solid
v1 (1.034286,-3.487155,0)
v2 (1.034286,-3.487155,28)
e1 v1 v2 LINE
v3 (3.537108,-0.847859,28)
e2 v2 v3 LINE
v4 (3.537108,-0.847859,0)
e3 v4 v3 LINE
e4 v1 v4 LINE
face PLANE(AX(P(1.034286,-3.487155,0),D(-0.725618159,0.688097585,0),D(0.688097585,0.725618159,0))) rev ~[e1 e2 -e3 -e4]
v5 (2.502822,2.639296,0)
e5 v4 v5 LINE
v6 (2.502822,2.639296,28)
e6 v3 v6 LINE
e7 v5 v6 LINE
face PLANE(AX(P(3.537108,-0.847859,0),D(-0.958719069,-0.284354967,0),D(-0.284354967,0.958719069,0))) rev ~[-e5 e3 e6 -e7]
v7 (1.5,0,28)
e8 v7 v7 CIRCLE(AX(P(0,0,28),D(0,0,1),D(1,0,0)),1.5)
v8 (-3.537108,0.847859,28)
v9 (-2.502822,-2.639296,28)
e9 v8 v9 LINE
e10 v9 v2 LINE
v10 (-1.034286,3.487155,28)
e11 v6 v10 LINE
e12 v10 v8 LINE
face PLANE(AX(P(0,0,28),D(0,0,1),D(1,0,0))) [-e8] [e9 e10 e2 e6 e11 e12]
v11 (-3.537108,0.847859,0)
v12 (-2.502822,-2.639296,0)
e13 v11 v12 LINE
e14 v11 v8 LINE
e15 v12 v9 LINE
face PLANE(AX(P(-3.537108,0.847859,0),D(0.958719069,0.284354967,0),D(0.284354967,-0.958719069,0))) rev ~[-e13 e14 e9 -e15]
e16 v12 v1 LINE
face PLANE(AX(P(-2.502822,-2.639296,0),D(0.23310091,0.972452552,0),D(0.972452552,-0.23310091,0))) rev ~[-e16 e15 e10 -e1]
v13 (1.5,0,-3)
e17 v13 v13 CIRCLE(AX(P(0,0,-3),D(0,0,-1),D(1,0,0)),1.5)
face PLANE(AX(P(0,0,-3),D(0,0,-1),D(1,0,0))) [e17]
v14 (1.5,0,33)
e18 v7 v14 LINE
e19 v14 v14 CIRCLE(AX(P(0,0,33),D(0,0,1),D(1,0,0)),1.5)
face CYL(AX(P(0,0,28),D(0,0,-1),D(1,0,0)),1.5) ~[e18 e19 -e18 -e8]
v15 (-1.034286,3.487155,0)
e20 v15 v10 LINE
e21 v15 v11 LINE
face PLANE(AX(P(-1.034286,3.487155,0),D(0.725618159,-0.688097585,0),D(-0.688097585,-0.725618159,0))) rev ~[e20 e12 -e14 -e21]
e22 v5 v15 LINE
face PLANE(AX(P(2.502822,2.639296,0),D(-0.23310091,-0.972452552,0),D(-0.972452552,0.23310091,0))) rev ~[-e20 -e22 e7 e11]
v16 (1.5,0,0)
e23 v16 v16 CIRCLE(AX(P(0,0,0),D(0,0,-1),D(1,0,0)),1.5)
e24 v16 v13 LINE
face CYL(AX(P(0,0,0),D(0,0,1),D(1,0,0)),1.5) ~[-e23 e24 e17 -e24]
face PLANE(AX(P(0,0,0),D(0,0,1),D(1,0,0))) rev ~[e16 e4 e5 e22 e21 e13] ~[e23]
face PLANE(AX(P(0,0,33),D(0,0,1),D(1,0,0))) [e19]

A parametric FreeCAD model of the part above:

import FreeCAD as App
import Part
import Sketcher


def add_polygon(sketch, points):
    """Adds a closed chain of lines whose ends are joined by coincident constraints."""
    first, n = sketch.GeometryCount, len(points)
    for a, b in zip(points, points[1:] + points[:1]):
        sketch.addGeometry(Part.LineSegment(App.Vector(*a, 0), App.Vector(*b, 0)), False)
    for i in range(n):
        sketch.addConstraint(Sketcher.Constraint("Coincident", first + i, 2, first + (i + 1) % n, 1))

doc = App.newDocument("Part")
params = doc.addObject("Spreadsheet::Sheet", "Params")
for row, (alias, value) in enumerate([
    ("pad1_length", "28 mm"),
    ("sketch2_diameter", "3 mm"),
    ("pad2_length", "5 mm"),
    ("sketch3_diameter", "3 mm"),
    ("pad3_length", "3 mm"),
], start=1):
    params.set(f"A{row}", alias)
    params.set(f"B{row}", "=" + value)
    params.setAlias(f"B{row}", alias)

body = doc.addObject("PartDesign::Body", "Body")

sketch1 = body.newObject("Sketcher::SketchObject", "Sketch")
sketch1.AttachmentSupport = (doc.getObject("XY_Plane"), [""])
sketch1.MapMode = "FlatFace"
add_polygon(sketch1, [(3.5, -0.8), (2.5, 2.6), (-1, 3.5), (-3.5, 0.8), (-2.5, -2.6), (1, -3.5)])
sketch1.addConstraint(Sketcher.Constraint("Symmetric", 0, 2, 3, 2, -1, 1))
sketch1.addConstraint(Sketcher.Constraint("Symmetric", 1, 2, 4, 2, -1, 1))
sketch1.addConstraint(Sketcher.Constraint("Symmetric", 2, 2, 5, 2, -1, 1))
sketch1.addConstraint(Sketcher.Constraint("Equal", 0, 1))
sketch1.addConstraint(Sketcher.Constraint("Equal", 1, 2))
sketch1.addConstraint(Sketcher.Constraint("DistanceX", -1, 1, 0, 2, 2.502822))
sketch1.addConstraint(Sketcher.Constraint("DistanceX", 2, 2, -1, 1, 3.537108))
sketch1.addConstraint(Sketcher.Constraint("DistanceY", -1, 1, 2, 2, 0.847859))
sketch1.addConstraint(Sketcher.Constraint("DistanceX", 1, 2, 0, 2, 3.537108))
pad1 = body.newObject("PartDesign::Pad", "Pad")
pad1.Profile = sketch1
pad1.setExpression("Length", "Params.pad1_length")

sketch2 = body.newObject("Sketcher::SketchObject", "Sketch001")
sketch2.AttachmentSupport = (doc.getObject("XY_Plane"), [""])
sketch2.MapMode = "FlatFace"
sketch2.AttachmentOffset = App.Placement(App.Vector(0, 0, 28), App.Rotation())
sketch2.addGeometry(Part.Circle(App.Vector(0, 0, 0), App.Vector(0, 0, 1), 1.5), False)
sketch2.addConstraint(Sketcher.Constraint("Coincident", 0, 3, -1, 1))
sketch2.addConstraint(Sketcher.Constraint("Diameter", 0, 3.0))
sketch2.setExpression("Constraints[1]", "Params.sketch2_diameter")
pad2 = body.newObject("PartDesign::Pad", "Pad001")
pad2.Profile = sketch2
pad2.setExpression("Length", "Params.pad2_length")

sketch3 = body.newObject("Sketcher::SketchObject", "Sketch002")
sketch3.AttachmentSupport = (doc.getObject("XY_Plane"), [""])
sketch3.MapMode = "FlatFace"
sketch3.addGeometry(Part.Circle(App.Vector(0, 0, 0), App.Vector(0, 0, 1), 1.5), False)
sketch3.addConstraint(Sketcher.Constraint("Coincident", 0, 3, -1, 1))
sketch3.addConstraint(Sketcher.Constraint("Diameter", 0, 3.0))
sketch3.setExpression("Constraints[1]", "Params.sketch3_diameter")
pad3 = body.newObject("PartDesign::Pad", "Pad002")
pad3.Profile = sketch3
pad3.setExpression("Length", "Params.pad3_length")
pad3.Reversed = True

doc.recompute()
